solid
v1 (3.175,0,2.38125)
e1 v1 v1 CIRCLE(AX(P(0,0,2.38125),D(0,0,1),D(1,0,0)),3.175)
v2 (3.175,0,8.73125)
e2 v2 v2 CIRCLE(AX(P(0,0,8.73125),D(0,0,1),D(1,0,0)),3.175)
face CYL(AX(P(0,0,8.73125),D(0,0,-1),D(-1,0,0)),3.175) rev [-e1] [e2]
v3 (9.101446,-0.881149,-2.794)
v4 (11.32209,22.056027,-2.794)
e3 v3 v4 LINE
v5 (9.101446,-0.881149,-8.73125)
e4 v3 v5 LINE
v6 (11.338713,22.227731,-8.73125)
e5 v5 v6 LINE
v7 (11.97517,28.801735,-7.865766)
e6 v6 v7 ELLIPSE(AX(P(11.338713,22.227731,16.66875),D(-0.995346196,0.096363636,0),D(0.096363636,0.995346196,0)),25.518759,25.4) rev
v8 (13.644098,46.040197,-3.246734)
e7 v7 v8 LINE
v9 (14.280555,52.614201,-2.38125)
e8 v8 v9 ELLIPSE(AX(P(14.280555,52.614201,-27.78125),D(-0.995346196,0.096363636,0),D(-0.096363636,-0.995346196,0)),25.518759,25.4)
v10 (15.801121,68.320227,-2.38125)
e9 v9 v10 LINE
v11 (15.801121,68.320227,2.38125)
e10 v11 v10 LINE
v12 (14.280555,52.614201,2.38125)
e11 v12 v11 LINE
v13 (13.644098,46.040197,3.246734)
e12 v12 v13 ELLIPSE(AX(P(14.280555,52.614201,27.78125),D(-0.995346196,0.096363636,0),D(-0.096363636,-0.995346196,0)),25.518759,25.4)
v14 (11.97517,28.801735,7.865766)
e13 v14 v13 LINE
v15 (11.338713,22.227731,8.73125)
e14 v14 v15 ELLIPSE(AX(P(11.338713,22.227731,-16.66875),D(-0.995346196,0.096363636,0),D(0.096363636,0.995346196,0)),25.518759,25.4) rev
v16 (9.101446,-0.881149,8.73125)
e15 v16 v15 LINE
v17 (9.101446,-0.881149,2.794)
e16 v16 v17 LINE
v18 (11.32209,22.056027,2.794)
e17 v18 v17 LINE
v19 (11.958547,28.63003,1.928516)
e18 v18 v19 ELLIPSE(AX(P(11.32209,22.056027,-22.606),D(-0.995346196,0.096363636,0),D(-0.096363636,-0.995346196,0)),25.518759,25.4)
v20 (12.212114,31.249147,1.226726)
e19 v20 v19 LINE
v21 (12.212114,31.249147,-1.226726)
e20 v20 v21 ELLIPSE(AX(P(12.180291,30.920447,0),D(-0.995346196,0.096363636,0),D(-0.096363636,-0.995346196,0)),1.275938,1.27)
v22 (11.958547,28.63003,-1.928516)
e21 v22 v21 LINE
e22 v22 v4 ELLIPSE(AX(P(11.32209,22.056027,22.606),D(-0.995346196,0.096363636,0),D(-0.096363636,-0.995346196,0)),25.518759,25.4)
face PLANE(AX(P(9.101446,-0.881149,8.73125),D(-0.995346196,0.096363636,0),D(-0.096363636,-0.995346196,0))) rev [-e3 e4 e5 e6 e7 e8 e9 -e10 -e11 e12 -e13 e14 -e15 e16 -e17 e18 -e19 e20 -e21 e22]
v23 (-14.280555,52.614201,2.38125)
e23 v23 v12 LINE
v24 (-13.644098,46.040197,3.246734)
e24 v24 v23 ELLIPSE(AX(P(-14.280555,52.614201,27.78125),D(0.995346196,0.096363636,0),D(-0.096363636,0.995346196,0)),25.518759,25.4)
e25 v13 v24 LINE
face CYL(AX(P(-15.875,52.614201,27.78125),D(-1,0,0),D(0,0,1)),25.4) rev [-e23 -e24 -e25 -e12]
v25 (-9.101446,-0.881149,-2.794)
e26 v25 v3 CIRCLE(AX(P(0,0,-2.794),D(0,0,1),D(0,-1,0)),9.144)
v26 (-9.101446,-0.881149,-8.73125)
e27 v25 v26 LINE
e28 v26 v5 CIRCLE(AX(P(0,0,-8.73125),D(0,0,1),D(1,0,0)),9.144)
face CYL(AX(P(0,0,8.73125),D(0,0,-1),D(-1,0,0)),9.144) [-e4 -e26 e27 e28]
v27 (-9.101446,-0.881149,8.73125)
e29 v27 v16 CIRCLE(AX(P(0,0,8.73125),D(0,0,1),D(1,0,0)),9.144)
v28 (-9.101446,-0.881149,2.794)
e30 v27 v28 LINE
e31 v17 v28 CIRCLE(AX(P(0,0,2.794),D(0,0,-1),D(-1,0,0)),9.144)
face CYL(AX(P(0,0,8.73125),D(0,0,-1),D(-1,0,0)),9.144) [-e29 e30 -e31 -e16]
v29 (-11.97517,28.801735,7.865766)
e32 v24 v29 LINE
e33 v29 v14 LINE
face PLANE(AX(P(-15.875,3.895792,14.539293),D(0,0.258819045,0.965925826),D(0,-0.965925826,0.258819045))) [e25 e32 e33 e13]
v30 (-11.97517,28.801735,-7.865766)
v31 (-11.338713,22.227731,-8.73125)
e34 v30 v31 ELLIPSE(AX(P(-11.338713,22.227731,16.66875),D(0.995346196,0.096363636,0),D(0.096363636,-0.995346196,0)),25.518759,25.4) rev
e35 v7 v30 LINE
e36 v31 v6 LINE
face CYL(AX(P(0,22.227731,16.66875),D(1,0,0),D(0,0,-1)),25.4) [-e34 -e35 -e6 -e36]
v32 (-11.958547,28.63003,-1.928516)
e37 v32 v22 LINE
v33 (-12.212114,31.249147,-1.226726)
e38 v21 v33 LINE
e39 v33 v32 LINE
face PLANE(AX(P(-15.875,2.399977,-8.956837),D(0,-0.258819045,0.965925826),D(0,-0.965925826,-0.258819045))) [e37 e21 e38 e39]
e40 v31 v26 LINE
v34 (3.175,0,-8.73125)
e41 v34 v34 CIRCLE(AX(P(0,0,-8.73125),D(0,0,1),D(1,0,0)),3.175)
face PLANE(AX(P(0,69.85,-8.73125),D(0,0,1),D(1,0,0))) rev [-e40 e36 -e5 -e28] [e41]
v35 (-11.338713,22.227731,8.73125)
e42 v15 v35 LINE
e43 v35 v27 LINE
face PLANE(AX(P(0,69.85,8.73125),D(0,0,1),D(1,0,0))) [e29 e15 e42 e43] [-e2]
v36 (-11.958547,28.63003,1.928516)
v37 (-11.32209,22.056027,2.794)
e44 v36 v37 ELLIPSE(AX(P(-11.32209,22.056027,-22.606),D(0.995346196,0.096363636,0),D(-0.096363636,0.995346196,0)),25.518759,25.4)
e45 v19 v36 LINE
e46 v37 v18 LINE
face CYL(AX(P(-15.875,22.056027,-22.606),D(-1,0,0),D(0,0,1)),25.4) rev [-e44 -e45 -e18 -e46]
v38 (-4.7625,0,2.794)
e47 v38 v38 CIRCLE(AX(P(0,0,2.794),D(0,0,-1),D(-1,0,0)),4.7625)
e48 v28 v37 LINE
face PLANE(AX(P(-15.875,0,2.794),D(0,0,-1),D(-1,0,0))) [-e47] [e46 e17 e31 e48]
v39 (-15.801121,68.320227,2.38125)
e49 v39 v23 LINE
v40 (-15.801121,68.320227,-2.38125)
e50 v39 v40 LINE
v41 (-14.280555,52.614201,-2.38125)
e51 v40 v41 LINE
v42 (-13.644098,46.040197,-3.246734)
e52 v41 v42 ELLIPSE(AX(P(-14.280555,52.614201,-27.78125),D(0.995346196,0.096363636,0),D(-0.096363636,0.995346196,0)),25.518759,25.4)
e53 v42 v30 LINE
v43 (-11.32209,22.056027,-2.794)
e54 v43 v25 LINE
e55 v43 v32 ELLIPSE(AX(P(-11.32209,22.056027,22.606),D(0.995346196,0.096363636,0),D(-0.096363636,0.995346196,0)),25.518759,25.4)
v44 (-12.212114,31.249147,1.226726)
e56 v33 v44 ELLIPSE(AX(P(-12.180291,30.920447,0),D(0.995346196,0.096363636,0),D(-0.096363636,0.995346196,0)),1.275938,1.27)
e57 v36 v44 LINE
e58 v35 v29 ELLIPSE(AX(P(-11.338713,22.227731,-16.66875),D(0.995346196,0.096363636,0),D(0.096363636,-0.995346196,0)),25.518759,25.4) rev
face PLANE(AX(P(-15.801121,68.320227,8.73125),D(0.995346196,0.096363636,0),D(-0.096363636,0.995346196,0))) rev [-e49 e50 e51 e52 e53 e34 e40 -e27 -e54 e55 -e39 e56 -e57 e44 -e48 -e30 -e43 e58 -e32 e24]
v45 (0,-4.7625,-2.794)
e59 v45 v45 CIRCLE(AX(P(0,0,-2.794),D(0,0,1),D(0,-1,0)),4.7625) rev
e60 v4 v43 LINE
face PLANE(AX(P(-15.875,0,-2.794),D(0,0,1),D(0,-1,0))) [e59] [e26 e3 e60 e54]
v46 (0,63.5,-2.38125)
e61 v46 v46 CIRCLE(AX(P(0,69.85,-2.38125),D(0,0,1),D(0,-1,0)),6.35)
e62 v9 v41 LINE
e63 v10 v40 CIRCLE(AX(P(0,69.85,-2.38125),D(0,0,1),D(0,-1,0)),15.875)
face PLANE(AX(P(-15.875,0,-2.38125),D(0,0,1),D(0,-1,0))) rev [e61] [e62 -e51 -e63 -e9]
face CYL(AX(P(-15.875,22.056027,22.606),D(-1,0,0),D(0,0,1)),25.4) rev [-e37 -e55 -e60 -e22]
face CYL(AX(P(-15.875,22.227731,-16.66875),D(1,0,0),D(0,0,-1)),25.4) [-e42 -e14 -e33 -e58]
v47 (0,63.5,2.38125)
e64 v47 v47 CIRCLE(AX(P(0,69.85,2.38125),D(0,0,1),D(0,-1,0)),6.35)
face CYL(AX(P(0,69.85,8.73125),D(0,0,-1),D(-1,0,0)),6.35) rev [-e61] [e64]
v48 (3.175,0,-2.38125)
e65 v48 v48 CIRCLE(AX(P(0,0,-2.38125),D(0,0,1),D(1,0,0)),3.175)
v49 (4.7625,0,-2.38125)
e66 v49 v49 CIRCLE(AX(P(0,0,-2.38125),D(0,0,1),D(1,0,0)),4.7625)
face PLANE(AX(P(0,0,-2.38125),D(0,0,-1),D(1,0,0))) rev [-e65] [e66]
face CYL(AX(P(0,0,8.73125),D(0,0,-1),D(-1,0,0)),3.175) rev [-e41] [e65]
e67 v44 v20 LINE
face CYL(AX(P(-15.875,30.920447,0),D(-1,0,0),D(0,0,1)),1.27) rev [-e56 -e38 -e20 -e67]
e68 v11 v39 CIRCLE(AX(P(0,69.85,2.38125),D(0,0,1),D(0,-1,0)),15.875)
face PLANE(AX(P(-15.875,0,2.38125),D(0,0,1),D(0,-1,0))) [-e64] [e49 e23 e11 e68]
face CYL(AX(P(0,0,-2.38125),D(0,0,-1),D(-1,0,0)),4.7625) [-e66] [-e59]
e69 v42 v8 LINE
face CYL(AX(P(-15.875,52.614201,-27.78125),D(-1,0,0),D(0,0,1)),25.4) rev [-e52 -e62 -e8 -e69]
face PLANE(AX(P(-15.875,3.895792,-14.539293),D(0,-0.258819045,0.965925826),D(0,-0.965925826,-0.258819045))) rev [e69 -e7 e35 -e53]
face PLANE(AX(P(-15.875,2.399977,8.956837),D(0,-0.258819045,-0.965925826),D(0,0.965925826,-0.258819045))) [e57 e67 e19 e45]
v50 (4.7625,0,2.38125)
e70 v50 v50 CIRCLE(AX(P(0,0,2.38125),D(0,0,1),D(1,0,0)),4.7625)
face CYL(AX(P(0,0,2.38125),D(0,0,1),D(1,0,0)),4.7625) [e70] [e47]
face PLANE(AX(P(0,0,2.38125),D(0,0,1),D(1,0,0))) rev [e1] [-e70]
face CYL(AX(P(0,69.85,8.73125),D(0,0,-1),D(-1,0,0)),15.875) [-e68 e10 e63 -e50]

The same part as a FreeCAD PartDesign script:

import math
import FreeCAD as App
import Part
import Sketcher
Q = App.Units.Quantity


def edges_at(feature, points):
    """Names of the edges that pass closest to the given points."""
    edges = feature.Shape.Edges
    near = lambda p: min(range(len(edges)), key=lambda i: edges[i].distToShape(Part.Vertex(*p))[0])
    return sorted({f"Edge{near(p) + 1}" for p in points})

doc = App.newDocument("Part")
params = doc.addObject("Spreadsheet::Sheet", "Params")
for row, (alias, value) in enumerate([
    ("sketch1_diameter", "0.5 in"),
    ("sketch1_diameter2", "0.25 in"),
    ("sketch1_radius", "0.36 in"),
    ("sketch1_radius2", "0.625 in"),
    ("pad1_length", "0.6875 in"),
    ("sketch2_width", "1.36 in"),
    ("sketch2_height", "0.25 in"),
    ("sketch2_height2", "0.22 in"),
    ("sketch3_diameter", "0.25 in"),
    ("sketch3_diameter2", "0.375 in"),
    ("pad2_length", "0.25 in"),
    ("fillet_radius", "1 in"),
    ("fillet2_radius", "0.05 in"),
], start=1):
    params.set(f"A{row}", alias)
    params.set(f"B{row}", "=" + value)
    params.setAlias(f"B{row}", alias)

body = doc.addObject("PartDesign::Body", "Body")

# Sketch on XY plane
sketch1 = doc.addObject("Sketcher::SketchObject", "Sketch")
body.addObject(sketch1)
sketch1.AttachmentSupport = (doc.XY_Plane, [""])
sketch1.MapMode = "FlatFace"
sketch1.addGeometry([
    Part.LineSegment(App.Vector(-15.801121, 68.320227, 0), App.Vector(-9.101446, -0.881149, 0)),  # 0
    Part.ArcOfCircle(Part.Circle(App.Vector(0, 0, 0), App.Vector(0, 0, 1), 9.144), math.radians(-174.470189), math.radians(-5.529811)),  # 1
    Part.LineSegment(App.Vector(9.101446, -0.881149, 0), App.Vector(15.801121, 68.320227, 0)),  # 2
    Part.ArcOfCircle(Part.Circle(App.Vector(0, 69.85, 0), App.Vector(0, 0, 1), 15.875), math.radians(-5.529811), math.radians(185.529811)),  # 3
    Part.Circle(App.Vector(0, 0, 0), App.Vector(0, 0, 1), 3.175),  # 4
    Part.Circle(App.Vector(0, 69.85, 0), App.Vector(0, 0, 1), 6.35),  # 5
], False)
sketch1.addConstraint([
    Sketcher.Constraint("Tangent", 0, 2, 1, 1),
    Sketcher.Constraint("Tangent", 1, 2, 2, 1),
    Sketcher.Constraint("Tangent", 2, 2, 3, 1),
    Sketcher.Constraint("Tangent", 3, 2, 0, 1),
    Sketcher.Constraint("Coincident", 1, 3, -1, 1),
    Sketcher.Constraint("Coincident", 4, 3, -1, 1),
    Sketcher.Constraint("Coincident", 5, 3, 3, 3),
    Sketcher.Constraint("PointOnObject", 3, 3, -2),
    Sketcher.Constraint("Diameter", 5, Q("0.5 in")),
    Sketcher.Constraint("Diameter", 4, Q("0.25 in")),
    Sketcher.Constraint("Radius", 1, Q("0.36 in")),
    Sketcher.Constraint("Radius", 3, Q("0.625 in")),
    Sketcher.Constraint("DistanceY", -1, 1, 3, 3, Q("2.75 in")),
])
sketch1.setExpression("Constraints[8]", "Params.sketch1_diameter")
sketch1.setExpression("Constraints[9]", "Params.sketch1_diameter2")
sketch1.setExpression("Constraints[10]", "Params.sketch1_radius")
sketch1.setExpression("Constraints[11]", "Params.sketch1_radius2")
pad1 = doc.addObject("PartDesign::Pad", "Pad")
body.addObject(pad1)
pad1.Profile = sketch1
pad1.setExpression("Length", "Params.pad1_length")
pad1.Midplane = True

# Sketch on YZ plane
sketch2 = doc.addObject("Sketcher::SketchObject", "Sketch001")
body.addObject(sketch2)
sketch2.AttachmentSupport = (doc.YZ_Plane, [""])
sketch2.MapMode = "FlatFace"
sketch2.addGeometry([
    Part.LineSegment(App.Vector(49.270227, 2.38125, 0), App.Vector(85.725, 2.38125, 0)),  # 0
    Part.LineSegment(App.Vector(85.725, 2.38125, 0), App.Vector(85.725, 8.73125, 0)),  # 1
    Part.LineSegment(App.Vector(85.725, 8.73125, 0), App.Vector(25.571705, 8.73125, 0)),  # 2
    Part.LineSegment(App.Vector(25.571705, 8.73125, 0), App.Vector(49.270227, 2.38125, 0)),  # 3
    Part.LineSegment(App.Vector(85.725, -8.73125, 0), App.Vector(85.725, -2.38125, 0)),  # 4
    Part.LineSegment(App.Vector(85.725, -2.38125, 0), App.Vector(49.270227, -2.38125, 0)),  # 5
    Part.LineSegment(App.Vector(49.270227, -2.38125, 0), App.Vector(25.571705, -8.73125, 0)),  # 6
    Part.LineSegment(App.Vector(25.571705, -8.73125, 0), App.Vector(85.725, -8.73125, 0)),  # 7
    Part.LineSegment(App.Vector(25.4, 2.794, 0), App.Vector(-9.144, 2.794, 0)),  # 8
    Part.LineSegment(App.Vector(-9.144, 2.794, 0), App.Vector(-9.144, -2.794, 0)),  # 9
    Part.LineSegment(App.Vector(-9.144, -2.794, 0), App.Vector(25.4, -2.794, 0)),  # 10
    Part.LineSegment(App.Vector(25.4, -2.794, 0), App.Vector(35.82735, 0, 0)),  # 11
    Part.LineSegment(App.Vector(35.82735, 0, 0), App.Vector(25.4, 2.794, 0)),  # 12
], False)
sketch2.addConstraint([
    Sketcher.Constraint("Coincident", 0, 2, 1, 1),
    Sketcher.Constraint("Coincident", 1, 2, 2, 1),
    Sketcher.Constraint("Coincident", 2, 2, 3, 1),
    Sketcher.Constraint("Coincident", 3, 2, 0, 1),
    Sketcher.Constraint("Coincident", 4, 2, 5, 1),
    Sketcher.Constraint("Coincident", 5, 2, 6, 1),
    Sketcher.Constraint("Coincident", 6, 2, 7, 1),
    Sketcher.Constraint("Coincident", 7, 2, 4, 1),
    Sketcher.Constraint("Coincident", 8, 2, 9, 1),
    Sketcher.Constraint("Coincident", 9, 2, 10, 1),
    Sketcher.Constraint("Coincident", 10, 2, 11, 1),
    Sketcher.Constraint("Coincident", 11, 2, 12, 1),
    Sketcher.Constraint("Coincident", 12, 2, 8, 1),
    Sketcher.Constraint("Horizontal", 0),
    Sketcher.Constraint("Vertical", 1),
    Sketcher.Constraint("Horizontal", 2),
    Sketcher.Constraint("Vertical", 4),
    Sketcher.Constraint("Horizontal", 5),
    Sketcher.Constraint("Horizontal", 7),
    Sketcher.Constraint("Horizontal", 8),
    Sketcher.Constraint("Vertical", 9),
    Sketcher.Constraint("Horizontal", 10),
    Sketcher.Constraint("Symmetric", 0, 2, 4, 2, -1),
    Sketcher.Constraint("Symmetric", 2, 2, 6, 2, -1),
    Sketcher.Constraint("Symmetric", 10, 2, 12, 2, -1),
    Sketcher.Constraint("PointOnObject", 11, 2, -1),
    Sketcher.Constraint("Parallel", 6, 11),
    Sketcher.Constraint("Parallel", 3, 12),
    Sketcher.Constraint("DistanceX", -1, 1, 10, 2, Q("1 in")),
    Sketcher.Constraint("Angle", 3, Q("-15 deg")),
    Sketcher.Constraint("DistanceX", 8, 2, 8, 1, Q("1.36 in")),
    Sketcher.Constraint("DistanceY", 1, 1, 1, 2, Q("0.25 in")),
    Sketcher.Constraint("DistanceY", 9, 2, 9, 1, Q("0.22 in")),
    Sketcher.Constraint("DistanceX", -1, 1, 0, 2, Q("3.375 in")),
    Sketcher.Constraint("DistanceY", -1, 1, 0, 2, Q("0.09375 in")),
    Sketcher.Constraint("DistanceX", 0, 1, 0, 2, 36.454773),
])
sketch2.setExpression("Constraints[30]", "Params.sketch2_width")
sketch2.setExpression("Constraints[31]", "Params.sketch2_height")
sketch2.setExpression("Constraints[32]", "Params.sketch2_height2")
pocket1 = doc.addObject("PartDesign::Pocket", "Pocket")
body.addObject(pocket1)
pocket1.Profile = sketch2
pocket1.Type = "ThroughAll"
pocket1.Midplane = True

# Sketch on XY plane
sketch3 = doc.addObject("Sketcher::SketchObject", "Sketch002")
body.addObject(sketch3)
sketch3.AttachmentSupport = (doc.XY_Plane, [""])
sketch3.MapMode = "FlatFace"
sketch3.AttachmentOffset = App.Placement(App.Vector(0, 0, 0.34375 * 25.4), App.Rotation())
sketch3.addGeometry([
    Part.Circle(App.Vector(0, 0, 0), App.Vector(0, 0, 1), 4.7625),
    Part.Circle(App.Vector(0, 0, 0), App.Vector(0, 0, 1), 3.175),
], False)
sketch3.addConstraint([
    Sketcher.Constraint("Coincident", 0, 3, -1, 1),
    Sketcher.Constraint("Coincident", 1, 3, -1, 1),
    Sketcher.Constraint("Diameter", 1, Q("0.25 in")),
    Sketcher.Constraint("Diameter", 0, Q("0.375 in")),
])
sketch3.setExpression("Constraints[2]", "Params.sketch3_diameter")
sketch3.setExpression("Constraints[3]", "Params.sketch3_diameter2")
pad2 = doc.addObject("PartDesign::Pad", "Pad001")
body.addObject(pad2)
pad2.Profile = sketch3
pad2.setExpression("Length", "Params.pad2_length")
pad2.Reversed = True
doc.recompute()

mirrored = doc.addObject("PartDesign::Mirrored", "Mirrored")
body.addObject(mirrored)
mirrored.Originals = [pad2]
mirrored.MirrorPlane = (doc.XY_Plane, [""])
body.Tip = mirrored
doc.recompute()

fillet = doc.addObject("PartDesign::Fillet", "Fillet")
body.addObject(fillet)
fillet.Base = (mirrored, edges_at(mirrored, [
    (0, 25.572, -8.731),
    (0, 49.27, -2.381),
    (0, 25.4, 2.794),
    (0, 25.4, -2.794),
    (0, 49.27, 2.381),
    (0, 25.572, 8.731),
]))
fillet.setExpression("Radius", "Params.fillet_radius")
doc.recompute()

fillet2 = doc.addObject("PartDesign::Fillet", "Fillet001")
body.addObject(fillet2)
fillet2.Base = (fillet, edges_at(fillet, [(0, 35.827, 0)]))
fillet2.setExpression("Radius", "Params.fillet2_radius")

doc.recompute()
